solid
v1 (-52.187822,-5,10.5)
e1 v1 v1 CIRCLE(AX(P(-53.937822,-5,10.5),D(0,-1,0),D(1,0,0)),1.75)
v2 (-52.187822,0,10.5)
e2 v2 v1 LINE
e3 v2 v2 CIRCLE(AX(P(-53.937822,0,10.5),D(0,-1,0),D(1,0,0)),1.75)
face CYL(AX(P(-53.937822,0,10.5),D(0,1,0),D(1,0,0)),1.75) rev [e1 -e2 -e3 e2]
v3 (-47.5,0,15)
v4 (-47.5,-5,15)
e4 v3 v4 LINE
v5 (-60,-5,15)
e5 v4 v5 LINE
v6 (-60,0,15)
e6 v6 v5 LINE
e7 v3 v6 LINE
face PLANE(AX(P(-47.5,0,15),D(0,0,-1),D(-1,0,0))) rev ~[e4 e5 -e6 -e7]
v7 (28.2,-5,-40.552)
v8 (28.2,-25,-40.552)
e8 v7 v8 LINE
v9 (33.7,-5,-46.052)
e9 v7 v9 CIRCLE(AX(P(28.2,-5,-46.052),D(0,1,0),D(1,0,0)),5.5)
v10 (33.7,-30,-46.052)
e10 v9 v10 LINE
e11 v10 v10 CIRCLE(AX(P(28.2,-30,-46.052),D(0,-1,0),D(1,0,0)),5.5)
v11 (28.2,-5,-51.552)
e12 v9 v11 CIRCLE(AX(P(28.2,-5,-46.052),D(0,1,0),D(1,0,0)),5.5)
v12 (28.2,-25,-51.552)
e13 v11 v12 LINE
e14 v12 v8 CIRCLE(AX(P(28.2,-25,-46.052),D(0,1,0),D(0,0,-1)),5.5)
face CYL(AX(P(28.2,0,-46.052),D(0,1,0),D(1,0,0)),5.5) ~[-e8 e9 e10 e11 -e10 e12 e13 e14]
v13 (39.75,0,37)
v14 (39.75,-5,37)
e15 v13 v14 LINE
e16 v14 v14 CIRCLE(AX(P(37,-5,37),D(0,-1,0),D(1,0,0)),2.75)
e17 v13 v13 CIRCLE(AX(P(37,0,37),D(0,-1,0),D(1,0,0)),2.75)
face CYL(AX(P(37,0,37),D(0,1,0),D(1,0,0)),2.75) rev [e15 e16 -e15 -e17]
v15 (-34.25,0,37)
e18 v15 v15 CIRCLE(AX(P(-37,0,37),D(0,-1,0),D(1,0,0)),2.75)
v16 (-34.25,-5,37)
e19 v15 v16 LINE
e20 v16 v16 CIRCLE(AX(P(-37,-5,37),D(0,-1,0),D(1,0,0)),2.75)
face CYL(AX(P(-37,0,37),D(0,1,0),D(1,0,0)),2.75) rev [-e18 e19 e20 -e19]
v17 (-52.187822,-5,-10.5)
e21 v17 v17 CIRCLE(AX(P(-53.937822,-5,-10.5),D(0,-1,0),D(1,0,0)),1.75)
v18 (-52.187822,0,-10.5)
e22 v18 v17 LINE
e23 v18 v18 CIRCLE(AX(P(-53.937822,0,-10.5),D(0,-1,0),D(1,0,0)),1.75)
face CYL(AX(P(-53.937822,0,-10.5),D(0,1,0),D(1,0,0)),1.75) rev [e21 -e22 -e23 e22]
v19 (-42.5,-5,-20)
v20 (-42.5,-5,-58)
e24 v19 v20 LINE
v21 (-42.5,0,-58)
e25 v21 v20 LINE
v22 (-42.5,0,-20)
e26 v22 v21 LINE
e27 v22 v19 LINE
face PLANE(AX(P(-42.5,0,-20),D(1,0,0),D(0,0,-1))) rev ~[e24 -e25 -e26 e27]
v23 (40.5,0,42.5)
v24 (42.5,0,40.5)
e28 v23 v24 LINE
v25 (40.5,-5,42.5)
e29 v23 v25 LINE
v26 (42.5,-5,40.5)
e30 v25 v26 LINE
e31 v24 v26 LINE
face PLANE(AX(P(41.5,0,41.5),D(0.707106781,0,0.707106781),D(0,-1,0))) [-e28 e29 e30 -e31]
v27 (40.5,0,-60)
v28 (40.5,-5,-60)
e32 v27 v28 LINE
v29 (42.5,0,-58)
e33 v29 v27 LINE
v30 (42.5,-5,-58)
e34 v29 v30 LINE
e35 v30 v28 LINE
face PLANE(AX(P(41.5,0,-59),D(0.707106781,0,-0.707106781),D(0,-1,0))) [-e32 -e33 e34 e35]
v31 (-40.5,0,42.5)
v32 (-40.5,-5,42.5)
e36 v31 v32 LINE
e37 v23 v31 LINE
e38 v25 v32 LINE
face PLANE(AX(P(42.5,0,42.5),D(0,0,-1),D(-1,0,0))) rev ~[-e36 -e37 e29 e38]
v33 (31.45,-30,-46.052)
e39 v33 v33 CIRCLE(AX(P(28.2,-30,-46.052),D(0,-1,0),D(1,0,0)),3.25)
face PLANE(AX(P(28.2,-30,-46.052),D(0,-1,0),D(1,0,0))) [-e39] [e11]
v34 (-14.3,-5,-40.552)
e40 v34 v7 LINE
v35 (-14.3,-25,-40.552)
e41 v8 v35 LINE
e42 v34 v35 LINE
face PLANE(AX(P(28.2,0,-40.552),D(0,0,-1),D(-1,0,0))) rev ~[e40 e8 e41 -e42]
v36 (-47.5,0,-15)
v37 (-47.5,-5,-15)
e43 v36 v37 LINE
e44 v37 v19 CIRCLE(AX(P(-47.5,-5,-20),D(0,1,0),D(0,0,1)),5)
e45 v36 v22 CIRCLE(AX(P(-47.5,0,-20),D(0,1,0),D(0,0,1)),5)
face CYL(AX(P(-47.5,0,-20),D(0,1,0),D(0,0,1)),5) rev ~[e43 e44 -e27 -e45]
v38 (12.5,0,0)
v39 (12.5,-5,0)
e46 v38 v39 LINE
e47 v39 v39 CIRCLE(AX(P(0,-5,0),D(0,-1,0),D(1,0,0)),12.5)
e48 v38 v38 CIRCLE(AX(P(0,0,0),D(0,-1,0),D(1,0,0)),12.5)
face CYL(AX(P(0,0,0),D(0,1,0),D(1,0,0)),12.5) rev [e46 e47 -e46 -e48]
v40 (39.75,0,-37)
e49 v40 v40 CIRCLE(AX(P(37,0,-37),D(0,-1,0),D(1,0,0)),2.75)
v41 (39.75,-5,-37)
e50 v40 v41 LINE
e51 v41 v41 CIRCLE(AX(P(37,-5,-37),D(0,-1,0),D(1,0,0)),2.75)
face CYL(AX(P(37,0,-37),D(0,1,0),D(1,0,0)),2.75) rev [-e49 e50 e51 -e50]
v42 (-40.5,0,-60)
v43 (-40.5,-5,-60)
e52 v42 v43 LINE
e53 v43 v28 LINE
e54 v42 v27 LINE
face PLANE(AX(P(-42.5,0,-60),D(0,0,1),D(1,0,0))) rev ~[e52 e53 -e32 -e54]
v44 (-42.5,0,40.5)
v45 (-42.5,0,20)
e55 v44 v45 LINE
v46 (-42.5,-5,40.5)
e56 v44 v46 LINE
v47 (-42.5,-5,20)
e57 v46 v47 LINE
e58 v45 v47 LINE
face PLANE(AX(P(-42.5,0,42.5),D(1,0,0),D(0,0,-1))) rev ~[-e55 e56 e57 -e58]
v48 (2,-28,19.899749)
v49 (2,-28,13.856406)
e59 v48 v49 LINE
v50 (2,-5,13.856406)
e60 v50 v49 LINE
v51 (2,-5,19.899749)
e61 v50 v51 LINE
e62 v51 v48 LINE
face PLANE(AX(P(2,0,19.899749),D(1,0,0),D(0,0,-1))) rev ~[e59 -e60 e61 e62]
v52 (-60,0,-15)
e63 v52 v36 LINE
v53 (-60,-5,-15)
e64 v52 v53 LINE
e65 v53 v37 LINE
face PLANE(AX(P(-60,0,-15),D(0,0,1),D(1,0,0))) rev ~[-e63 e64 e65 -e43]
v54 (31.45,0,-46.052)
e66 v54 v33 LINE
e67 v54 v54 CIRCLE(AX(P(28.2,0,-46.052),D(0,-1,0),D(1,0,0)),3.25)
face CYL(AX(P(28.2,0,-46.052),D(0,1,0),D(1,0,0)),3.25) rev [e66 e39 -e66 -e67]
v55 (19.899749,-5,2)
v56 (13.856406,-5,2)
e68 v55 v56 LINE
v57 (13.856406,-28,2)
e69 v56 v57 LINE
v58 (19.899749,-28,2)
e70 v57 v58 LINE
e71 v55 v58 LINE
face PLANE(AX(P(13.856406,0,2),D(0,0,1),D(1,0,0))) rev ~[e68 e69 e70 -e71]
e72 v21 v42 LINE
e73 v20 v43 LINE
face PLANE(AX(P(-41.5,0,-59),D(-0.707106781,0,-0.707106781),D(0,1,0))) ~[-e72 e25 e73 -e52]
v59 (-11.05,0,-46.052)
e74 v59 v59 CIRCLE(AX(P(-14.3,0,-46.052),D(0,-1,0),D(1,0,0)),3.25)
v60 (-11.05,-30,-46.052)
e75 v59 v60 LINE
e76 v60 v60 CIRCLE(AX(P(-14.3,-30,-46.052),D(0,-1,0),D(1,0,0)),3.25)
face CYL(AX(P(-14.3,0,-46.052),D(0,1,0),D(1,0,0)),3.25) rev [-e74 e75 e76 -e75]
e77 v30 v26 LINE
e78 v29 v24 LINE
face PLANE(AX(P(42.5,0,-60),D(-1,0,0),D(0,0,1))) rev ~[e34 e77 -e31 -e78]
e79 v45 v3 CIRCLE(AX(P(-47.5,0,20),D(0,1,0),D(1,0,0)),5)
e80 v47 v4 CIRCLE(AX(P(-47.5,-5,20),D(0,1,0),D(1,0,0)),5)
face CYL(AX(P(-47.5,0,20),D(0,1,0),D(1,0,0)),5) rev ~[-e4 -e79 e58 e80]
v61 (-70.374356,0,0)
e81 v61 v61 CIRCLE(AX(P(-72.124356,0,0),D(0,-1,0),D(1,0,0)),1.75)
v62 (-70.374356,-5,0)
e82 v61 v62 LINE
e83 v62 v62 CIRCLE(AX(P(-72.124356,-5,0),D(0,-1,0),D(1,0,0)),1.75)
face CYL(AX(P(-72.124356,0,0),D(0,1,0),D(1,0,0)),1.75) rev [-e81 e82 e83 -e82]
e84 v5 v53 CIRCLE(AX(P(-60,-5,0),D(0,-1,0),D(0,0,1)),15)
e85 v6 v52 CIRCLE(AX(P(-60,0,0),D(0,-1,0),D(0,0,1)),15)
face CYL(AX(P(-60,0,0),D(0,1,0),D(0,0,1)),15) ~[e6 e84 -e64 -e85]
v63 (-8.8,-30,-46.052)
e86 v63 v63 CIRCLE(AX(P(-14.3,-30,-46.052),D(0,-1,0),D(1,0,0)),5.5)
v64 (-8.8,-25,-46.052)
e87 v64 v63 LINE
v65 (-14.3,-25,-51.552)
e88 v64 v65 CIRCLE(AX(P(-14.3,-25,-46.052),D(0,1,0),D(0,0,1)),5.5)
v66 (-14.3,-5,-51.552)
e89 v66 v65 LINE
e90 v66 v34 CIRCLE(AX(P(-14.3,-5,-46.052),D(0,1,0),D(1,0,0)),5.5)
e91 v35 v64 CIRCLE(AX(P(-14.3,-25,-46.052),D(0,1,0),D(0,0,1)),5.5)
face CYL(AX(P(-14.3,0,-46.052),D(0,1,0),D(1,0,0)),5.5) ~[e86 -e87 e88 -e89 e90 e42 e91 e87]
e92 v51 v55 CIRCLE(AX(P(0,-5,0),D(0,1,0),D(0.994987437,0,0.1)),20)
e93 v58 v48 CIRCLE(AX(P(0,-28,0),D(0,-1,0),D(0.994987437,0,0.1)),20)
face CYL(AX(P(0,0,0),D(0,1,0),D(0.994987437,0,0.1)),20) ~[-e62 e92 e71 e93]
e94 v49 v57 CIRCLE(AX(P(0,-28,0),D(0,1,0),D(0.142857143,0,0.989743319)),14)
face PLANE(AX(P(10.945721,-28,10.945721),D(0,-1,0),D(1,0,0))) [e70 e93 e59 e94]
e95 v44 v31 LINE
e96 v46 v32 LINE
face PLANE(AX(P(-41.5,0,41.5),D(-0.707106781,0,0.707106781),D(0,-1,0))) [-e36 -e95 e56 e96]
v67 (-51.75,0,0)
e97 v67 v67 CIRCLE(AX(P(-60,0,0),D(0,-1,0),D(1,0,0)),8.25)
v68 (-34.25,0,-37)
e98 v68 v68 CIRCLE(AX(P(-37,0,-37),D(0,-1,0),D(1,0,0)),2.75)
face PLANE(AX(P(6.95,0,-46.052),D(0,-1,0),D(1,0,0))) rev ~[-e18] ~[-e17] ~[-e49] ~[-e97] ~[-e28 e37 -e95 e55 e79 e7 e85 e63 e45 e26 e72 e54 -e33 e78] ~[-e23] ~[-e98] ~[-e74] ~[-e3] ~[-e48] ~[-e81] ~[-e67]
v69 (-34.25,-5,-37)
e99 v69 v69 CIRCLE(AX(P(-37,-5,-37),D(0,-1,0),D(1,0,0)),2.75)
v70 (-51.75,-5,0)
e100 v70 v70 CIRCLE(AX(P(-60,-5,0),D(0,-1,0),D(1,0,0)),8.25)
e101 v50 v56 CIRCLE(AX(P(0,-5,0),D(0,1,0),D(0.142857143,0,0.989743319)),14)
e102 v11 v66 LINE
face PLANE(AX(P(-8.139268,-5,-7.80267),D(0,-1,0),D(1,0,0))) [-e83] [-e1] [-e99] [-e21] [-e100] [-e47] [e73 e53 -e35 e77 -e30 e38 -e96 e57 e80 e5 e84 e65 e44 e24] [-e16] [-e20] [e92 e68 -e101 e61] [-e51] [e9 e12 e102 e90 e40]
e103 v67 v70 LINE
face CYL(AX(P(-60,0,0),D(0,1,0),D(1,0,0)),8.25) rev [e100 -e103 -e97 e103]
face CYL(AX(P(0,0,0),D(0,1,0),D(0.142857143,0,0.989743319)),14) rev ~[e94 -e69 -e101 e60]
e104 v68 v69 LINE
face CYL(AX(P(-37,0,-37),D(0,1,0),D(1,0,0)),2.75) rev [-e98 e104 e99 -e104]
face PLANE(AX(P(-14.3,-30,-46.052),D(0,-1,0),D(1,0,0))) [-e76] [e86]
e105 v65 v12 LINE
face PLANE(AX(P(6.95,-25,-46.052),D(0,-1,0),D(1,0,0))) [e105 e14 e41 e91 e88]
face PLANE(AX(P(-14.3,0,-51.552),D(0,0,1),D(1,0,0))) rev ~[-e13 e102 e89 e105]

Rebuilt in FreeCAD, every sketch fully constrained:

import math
import FreeCAD as App
import Part
import Sketcher
from FreeCAD import Vector


def edges_at(feature, points):
    """Names of the edges that pass closest to the given points."""
    edges = feature.Shape.Edges
    near = lambda p: min(range(len(edges)), key=lambda i: edges[i].distToShape(Part.Vertex(*p))[0])
    return sorted({f"Edge{near(p) + 1}" for p in points})

doc = App.newDocument("Part")
body = doc.addObject("PartDesign::Body", "Body")

# Sketch on XZ plane
sketch1 = body.newObject("Sketcher::SketchObject", "Sketch")
sketch1.AttachmentSupport = (doc.getObject("XZ_Plane"), [""])
sketch1.MapMode = "FlatFace"
sketch1.addGeometry([
    Part.Circle(Vector(28.2, -46.1, 0), Vector(0, 0, 1), 5.5),
    Part.Circle(Vector(28.2, -46.1, 0), Vector(0, 0, 1), 3.2),
], False)
sketch1.addConstraint([
    Sketcher.Constraint("Coincident", 1, 3, 0, 3),
    Sketcher.Constraint("Diameter", 0, 11.0),
    Sketcher.Constraint("Diameter", 1, 6.5),
    Sketcher.Constraint("DistanceX", -1, 1, 0, 3, 28.2),
    Sketcher.Constraint("DistanceY", 0, 3, -1, 1, 46.052),
])
pad1 = body.newObject("PartDesign::Pad", "Pad")
pad1.Profile = sketch1
pad1.Length = 30
body2 = doc.addObject("PartDesign::Body", "Body001")

# Sketch on XZ plane
sketch2 = body2.newObject("Sketcher::SketchObject", "Sketch001")
sketch2.AttachmentSupport = (doc.getObject("XZ_Plane001"), [""])
sketch2.MapMode = "FlatFace"
sketch2.addGeometry([
    Part.Circle(Vector(-14.3, -46.1, 0), Vector(0, 0, 1), 5.5),
    Part.Circle(Vector(-14.3, -46.1, 0), Vector(0, 0, 1), 3.2),
], False)
sketch2.addConstraint([
    Sketcher.Constraint("Coincident", 1, 3, 0, 3),
    Sketcher.Constraint("Diameter", 0, 11.0),
    Sketcher.Constraint("Diameter", 1, 6.5),
    Sketcher.Constraint("DistanceX", 0, 3, -1, 1, 14.3),
    Sketcher.Constraint("DistanceY", 0, 3, -1, 1, 46.052),
])
pad2 = body2.newObject("PartDesign::Pad", "Pad001")
pad2.Profile = sketch2
pad2.Length = 30
body.AllowCompound = True
doc.recompute()

boolean = body.newObject("PartDesign::Boolean", "Boolean")
boolean.Type = "Fuse"
boolean.addObjects([body2])

# Sketch on XZ plane
sketch3 = body.newObject("Sketcher::SketchObject", "Sketch002")
sketch3.AttachmentSupport = (doc.getObject("XZ_Plane"), [""])
sketch3.MapMode = "FlatFace"
sketch3.addGeometry([
    Part.LineSegment(Vector(-47.5, 15, 0), Vector(-60, 15, 0)),  # 0
    Part.ArcOfCircle(Part.Circle(Vector(-60, 0, 0), Vector(0, 0, 1), 15), math.radians(90), math.radians(270)),  # 1
    Part.LineSegment(Vector(-60, -15, 0), Vector(-47.5, -15, 0)),  # 2
    Part.ArcOfCircle(Part.Circle(Vector(-47.5, -20, 0), Vector(0, 0, 1), 5), math.radians(0), math.radians(90)),  # 3
    Part.LineSegment(Vector(-42.5, -20, 0), Vector(-42.5, -60, 0)),  # 4
    Part.LineSegment(Vector(-42.5, -60, 0), Vector(42.5, -60, 0)),  # 5
    Part.LineSegment(Vector(42.5, -60, 0), Vector(42.5, 42.5, 0)),  # 6
    Part.LineSegment(Vector(42.5, 42.5, 0), Vector(-42.5, 42.5, 0)),  # 7
    Part.LineSegment(Vector(-42.5, 42.5, 0), Vector(-42.5, 20, 0)),  # 8
    Part.ArcOfCircle(Part.Circle(Vector(-47.5, 20, 0), Vector(0, 0, 1), 5), math.radians(-90), math.radians(0)),  # 9
    Part.Circle(Vector(-37, -37, 0), Vector(0, 0, 1), 2.8),  # 10
    Part.Circle(Vector(-53.9, -10.5, 0), Vector(0, 0, 1), 1.8),  # 11
    Part.Circle(Vector(-14.3, -46.1, 0), Vector(0, 0, 1), 3.5),  # 12
    Part.Circle(Vector(28.2, -46.1, 0), Vector(0, 0, 1), 3.5),  # 13
    Part.Circle(Vector(37, -37, 0), Vector(0, 0, 1), 2.8),  # 14
    Part.Circle(Vector(-72.1, 0, 0), Vector(0, 0, 1), 1.8),  # 15
    Part.Circle(Vector(-60, 0, 0), Vector(0, 0, 1), 8.2),  # 16
    Part.Circle(Vector(-53.9, 10.5, 0), Vector(0, 0, 1), 1.8),  # 17
    Part.Circle(Vector(-37, 37, 0), Vector(0, 0, 1), 2.8),  # 18
    Part.Circle(Vector(0, 0, 0), Vector(0, 0, 1), 12.5),  # 19
    Part.Circle(Vector(37, 37, 0), Vector(0, 0, 1), 2.8),  # 20
], False)
sketch3.addConstraint([
    Sketcher.Constraint("Tangent", 0, 2, 1, 1),
    Sketcher.Constraint("Tangent", 1, 2, 2, 1),
    Sketcher.Constraint("Tangent", 2, 2, 3, 2),
    Sketcher.Constraint("Tangent", 3, 1, 4, 1),
    Sketcher.Constraint("Coincident", 4, 2, 5, 1),
    Sketcher.Constraint("Coincident", 5, 2, 6, 1),
    Sketcher.Constraint("Coincident", 6, 2, 7, 1),
    Sketcher.Constraint("Coincident", 7, 2, 8, 1),
    Sketcher.Constraint("Tangent", 8, 2, 9, 2),
    Sketcher.Constraint("Tangent", 9, 1, 0, 1),
    Sketcher.Constraint("Horizontal", 0),
    Sketcher.Constraint("Horizontal", 2),
    Sketcher.Constraint("Vertical", 4),
    Sketcher.Constraint("Horizontal", 5),
    Sketcher.Constraint("Vertical", 6),
    Sketcher.Constraint("Horizontal", 7),
    Sketcher.Constraint("Vertical", 8),
    Sketcher.Constraint("Coincident", 19, 3, -1, 1),
    Sketcher.Constraint("Coincident", 16, 3, 1, 3),
    Sketcher.Constraint("Equal", 3, 9),
    Sketcher.Constraint("Equal", 12, 13),
    Sketcher.Constraint("Equal", 10, 14),
    Sketcher.Constraint("Equal", 11, 15),
    Sketcher.Constraint("Equal", 15, 17),
    Sketcher.Constraint("Equal", 14, 18),
    Sketcher.Constraint("Equal", 18, 20),
    Sketcher.Constraint("Symmetric", 14, 3, 18, 3, -1, 1),
    Sketcher.Constraint("Symmetric", 10, 3, 20, 3, -1, 1),
    Sketcher.Constraint("Symmetric", 10, 3, 14, 3, -2),
    Sketcher.Constraint("Symmetric", 3, 3, 9, 3, -1),
    Sketcher.Constraint("Symmetric", 11, 3, 17, 3, -1),
    Sketcher.Constraint("PointOnObject", 15, 3, -1),
    Sketcher.Constraint("Horizontal", 12, 3, 13, 3),
    Sketcher.Constraint("Diameter", 12, 7.0),
    Sketcher.Constraint("Diameter", 19, 25.0),
    Sketcher.Constraint("Radius", 1, 15.0),
    Sketcher.Constraint("Radius", 3, 5.0),
    Sketcher.Constraint("Diameter", 10, 5.5),
    Sketcher.Constraint("Diameter", 11, 3.5),
    Sketcher.Constraint("Diameter", 16, 16.5),
    Sketcher.Constraint("DistanceX", 5, 1, 5, 2, 85.0),
    Sketcher.Constraint("DistanceY", 4, 2, 4, 1, 40.0),
    Sketcher.Constraint("DistanceX", 0, 2, 0, 1, 12.5),
    Sketcher.Constraint("DistanceY", 6, 1, 6, 2, 102.5),
    Sketcher.Constraint("DistanceX", 1, 3, -1, 1, 60.0),
    Sketcher.Constraint("DistanceX", 10, 3, -1, 1, 37.0),
    Sketcher.Constraint("DistanceY", 10, 3, -1, 1, 37.0),
    Sketcher.Constraint("DistanceY", 11, 3, 17, 3, 21.0),
    Sketcher.Constraint("DistanceX", 12, 3, -1, 1, 14.3),
    Sketcher.Constraint("DistanceX", -1, 1, 13, 3, 28.2),
    Sketcher.Constraint("DistanceY", 12, 3, -1, 1, 46.052),
    Sketcher.Constraint("DistanceX", 11, 3, -1, 1, 53.937822),
    Sketcher.Constraint("DistanceX", 15, 3, -1, 1, 72.124356),
])
pad3 = body.newObject("PartDesign::Pad", "Pad002")
pad3.Profile = sketch3
pad3.Length = 5

# Sketch on XZ plane
sketch4 = body.newObject("Sketcher::SketchObject", "Sketch003")
sketch4.AttachmentSupport = (doc.getObject("XZ_Plane"), [""])
sketch4.MapMode = "FlatFace"
sketch4.addGeometry([
    Part.LineSegment(Vector(2, 20, 0), Vector(2, 14, 0)),
    Part.ArcOfCircle(Part.Circle(Vector(0, 0, 0), Vector(0, 0, 1), 14), math.radians(8), math.radians(82)),
    Part.LineSegment(Vector(14, 2, 0), Vector(20, 2, 0)),
    Part.ArcOfCircle(Part.Circle(Vector(0, 0, 0), Vector(0, 0, 1), 20), math.radians(6), math.radians(84)),
], False)
sketch4.addConstraint([
    Sketcher.Constraint("Coincident", 0, 2, 1, 2),
    Sketcher.Constraint("Coincident", 1, 1, 2, 1),
    Sketcher.Constraint("Coincident", 2, 2, 3, 1),
    Sketcher.Constraint("Coincident", 3, 2, 0, 1),
    Sketcher.Constraint("Vertical", 0),
    Sketcher.Constraint("Horizontal", 2),
    Sketcher.Constraint("Coincident", 1, 3, -1, 1),
    Sketcher.Constraint("Coincident", 3, 3, -1, 1),
    Sketcher.Constraint("Equal", 2, 0),
    Sketcher.Constraint("Radius", 1, 14.0),
    Sketcher.Constraint("Radius", 3, 20.0),
    Sketcher.Constraint("DistanceX", -1, 1, 0, 2, 2.0),
])
pad4 = body.newObject("PartDesign::Pad", "Pad003")
pad4.Profile = sketch4
pad4.Length = 28

# Sketch on XZ plane
sketch5 = body.newObject("Sketcher::SketchObject", "Sketch004")
sketch5.AttachmentSupport = (doc.getObject("XZ_Plane"), [""])
sketch5.MapMode = "FlatFace"
sketch5.addGeometry([
    Part.LineSegment(Vector(28, -41, 0), Vector(-14, -41, 0)),
    Part.ArcOfCircle(Part.Circle(Vector(-14, -46, 0), Vector(0, 0, 1), 6), math.radians(-90), math.radians(90)),
    Part.LineSegment(Vector(-14, -52, 0), Vector(28, -52, 0)),
    Part.ArcOfCircle(Part.Circle(Vector(28, -46, 0), Vector(0, 0, 1), 6), math.radians(90), math.radians(270)),
], False)
sketch5.addConstraint([
    Sketcher.Constraint("Tangent", 0, 2, 1, 2),
    Sketcher.Constraint("Tangent", 1, 1, 2, 1),
    Sketcher.Constraint("Tangent", 2, 2, 3, 2),
    Sketcher.Constraint("Tangent", 3, 1, 0, 1),
    Sketcher.Constraint("Horizontal", 0),
    Sketcher.Constraint("Horizontal", 2),
    Sketcher.Constraint("Radius", 1, 5.5),
    Sketcher.Constraint("DistanceX", 0, 2, 0, 1, 42.5),
    Sketcher.Constraint("DistanceX", 1, 3, -1, 1, 14.3),
    Sketcher.Constraint("DistanceY", 1, 3, -1, 1, 46.052),
])
pad5 = body.newObject("PartDesign::Pad", "Pad004")
pad5.Profile = sketch5
pad5.Length = 25
doc.recompute()

chamfer = body.newObject("PartDesign::Chamfer", "Chamfer")
chamfer.Base = (pad5, edges_at(pad5, [
    (-42.5, -2.5, 42.5),
    (42.5, -2.5, 42.5),
    (42.5, -2.5, -60),
    (-42.5, -2.5, -60),
]))
chamfer.Size = 2

doc.recompute()
